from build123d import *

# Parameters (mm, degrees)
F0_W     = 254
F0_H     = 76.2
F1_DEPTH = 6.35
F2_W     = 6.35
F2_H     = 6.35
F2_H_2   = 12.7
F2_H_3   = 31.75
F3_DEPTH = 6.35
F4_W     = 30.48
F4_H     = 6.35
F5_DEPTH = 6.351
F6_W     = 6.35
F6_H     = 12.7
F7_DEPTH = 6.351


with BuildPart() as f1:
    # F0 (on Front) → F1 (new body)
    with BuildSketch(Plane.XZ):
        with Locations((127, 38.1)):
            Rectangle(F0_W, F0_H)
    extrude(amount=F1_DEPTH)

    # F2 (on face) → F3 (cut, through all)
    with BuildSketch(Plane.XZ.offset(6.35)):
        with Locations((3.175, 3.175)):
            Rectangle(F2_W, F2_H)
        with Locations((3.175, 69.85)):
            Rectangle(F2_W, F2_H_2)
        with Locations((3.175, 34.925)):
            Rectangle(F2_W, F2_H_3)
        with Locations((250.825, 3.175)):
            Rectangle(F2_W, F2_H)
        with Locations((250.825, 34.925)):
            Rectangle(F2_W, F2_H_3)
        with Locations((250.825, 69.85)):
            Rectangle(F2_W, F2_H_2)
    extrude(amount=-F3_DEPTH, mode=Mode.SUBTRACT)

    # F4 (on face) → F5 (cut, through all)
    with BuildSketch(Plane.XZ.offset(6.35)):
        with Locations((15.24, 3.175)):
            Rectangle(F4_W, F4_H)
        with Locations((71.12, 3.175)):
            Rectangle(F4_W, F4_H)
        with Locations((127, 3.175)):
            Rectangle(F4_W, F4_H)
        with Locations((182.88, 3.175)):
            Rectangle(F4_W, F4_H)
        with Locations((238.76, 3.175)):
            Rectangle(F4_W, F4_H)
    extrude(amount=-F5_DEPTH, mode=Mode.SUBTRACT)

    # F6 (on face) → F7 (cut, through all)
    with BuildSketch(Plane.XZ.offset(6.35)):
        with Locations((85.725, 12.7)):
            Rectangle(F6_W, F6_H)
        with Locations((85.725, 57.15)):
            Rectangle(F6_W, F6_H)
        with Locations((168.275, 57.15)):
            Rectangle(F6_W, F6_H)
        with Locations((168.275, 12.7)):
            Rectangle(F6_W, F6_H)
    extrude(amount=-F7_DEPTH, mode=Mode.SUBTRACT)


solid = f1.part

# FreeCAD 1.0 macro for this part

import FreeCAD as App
import Part
import Sketcher
Q = App.Units.Quantity


def add_polygon(sketch, points):
    """Adds a closed chain of lines whose ends are joined by coincident constraints."""
    first, n = sketch.GeometryCount, len(points)
    for a, b in zip(points, points[1:] + points[:1]):
        sketch.addGeometry(Part.LineSegment(App.Vector(*a, 0), App.Vector(*b, 0)), False)
    for i in range(n):
        sketch.addConstraint(Sketcher.Constraint("Coincident", first + i, 2, first + (i + 1) % n, 1))

doc = App.newDocument("Part")
body = doc.addObject("PartDesign::Body", "Body")

sketch1 = body.newObject("Sketcher::SketchObject", "Sketch")
sketch1.AttachmentSupport = (doc.getObject("XZ_Plane"), [""])
sketch1.MapMode = "FlatFace"
add_polygon(sketch1, [(0, 76), (0, 0), (254, 0), (254, 76)])
sketch1.addConstraint(Sketcher.Constraint("Vertical", 0))
sketch1.addConstraint(Sketcher.Constraint("Horizontal", 1))
sketch1.addConstraint(Sketcher.Constraint("Vertical", 2))
sketch1.addConstraint(Sketcher.Constraint("Horizontal", 3))
sketch1.addConstraint(Sketcher.Constraint("Coincident", 0, 2, -1, 1))
sketch1.addConstraint(Sketcher.Constraint("DistanceX", 1, 1, 1, 2, Q("10 in")))
sketch1.addConstraint(Sketcher.Constraint("DistanceY", 0, 2, 0, 1, Q("3 in")))
pad1 = body.newObject("PartDesign::Pad", "Pad")
pad1.Profile = sketch1
pad1.Length = Q("0.25 in")

sketch2 = body.newObject("Sketcher::SketchObject", "Sketch001")
sketch2.AttachmentSupport = (doc.getObject("XZ_Plane"), [""])
sketch2.MapMode = "FlatFace"
sketch2.AttachmentOffset = App.Placement(App.Vector(0, 0, 0.25 * 25.4), App.Rotation())
add_polygon(sketch2, [(0, 6), (0, 0), (6, 0), (6, 6)])
add_polygon(sketch2, [(0, 76), (0, 64), (6, 64), (6, 76)])
add_polygon(sketch2, [(0, 51), (0, 19), (6, 19), (6, 51)])
add_polygon(sketch2, [(248, 6), (248, 0), (254, 0), (254, 6)])
add_polygon(sketch2, [(248, 51), (248, 19), (254, 19), (254, 51)])
add_polygon(sketch2, [(248, 76), (248, 64), (254, 64), (254, 76)])
sketch2.addConstraint(Sketcher.Constraint("Vertical", 0))
sketch2.addConstraint(Sketcher.Constraint("Horizontal", 1))
sketch2.addConstraint(Sketcher.Constraint("Vertical", 2))
sketch2.addConstraint(Sketcher.Constraint("Horizontal", 3))
sketch2.addConstraint(Sketcher.Constraint("Vertical", 4))
sketch2.addConstraint(Sketcher.Constraint("Horizontal", 5))
sketch2.addConstraint(Sketcher.Constraint("Vertical", 6))
sketch2.addConstraint(Sketcher.Constraint("Horizontal", 7))
sketch2.addConstraint(Sketcher.Constraint("Vertical", 8))
sketch2.addConstraint(Sketcher.Constraint("Horizontal", 9))
sketch2.addConstraint(Sketcher.Constraint("Vertical", 10))
sketch2.addConstraint(Sketcher.Constraint("Horizontal", 11))
sketch2.addConstraint(Sketcher.Constraint("Vertical", 12))
sketch2.addConstraint(Sketcher.Constraint("Horizontal", 13))
sketch2.addConstraint(Sketcher.Constraint("Vertical", 14))
sketch2.addConstraint(Sketcher.Constraint("Horizontal", 15))
sketch2.addConstraint(Sketcher.Constraint("Vertical", 16))
sketch2.addConstraint(Sketcher.Constraint("Horizontal", 17))
sketch2.addConstraint(Sketcher.Constraint("Vertical", 18))
sketch2.addConstraint(Sketcher.Constraint("Horizontal", 19))
sketch2.addConstraint(Sketcher.Constraint("Vertical", 20))
sketch2.addConstraint(Sketcher.Constraint("Horizontal", 21))
sketch2.addConstraint(Sketcher.Constraint("Vertical", 22))
sketch2.addConstraint(Sketcher.Constraint("Horizontal", 23))
sketch2.addConstraint(Sketcher.Constraint("Coincident", 0, 2, -1, 1))
sketch2.addConstraint(Sketcher.Constraint("PointOnObject", 4, 2, -2))
sketch2.addConstraint(Sketcher.Constraint("PointOnObject", 8, 2, -2))
sketch2.addConstraint(Sketcher.Constraint("PointOnObject", 12, 2, -1))
sketch2.addConstraint(Sketcher.Constraint("Horizontal", 3, 2, 14, 2))
sketch2.addConstraint(Sketcher.Constraint("Horizontal", 9, 2, 16, 2))
sketch2.addConstraint(Sketcher.Constraint("Horizontal", 11, 2, 18, 2))
sketch2.addConstraint(Sketcher.Constraint("Horizontal", 5, 2, 20, 2))
sketch2.addConstraint(Sketcher.Constraint("Horizontal", 7, 2, 22, 2))
sketch2.addConstraint(Sketcher.Constraint("Vertical", 2, 2, 5, 2))
sketch2.addConstraint(Sketcher.Constraint("Vertical", 6, 2, 9, 2))
sketch2.addConstraint(Sketcher.Constraint("Vertical", 15, 2, 16, 2))
sketch2.addConstraint(Sketcher.Constraint("Vertical", 14, 2, 17, 2))
sketch2.addConstraint(Sketcher.Constraint("Vertical", 19, 2, 20, 2))
sketch2.addConstraint(Sketcher.Constraint("Vertical", 18, 2, 21, 2))
sketch2.addConstraint(Sketcher.Constraint("Equal", 11, 13))
sketch2.addConstraint(Sketcher.Constraint("Equal", 23, 0))
sketch2.addConstraint(Sketcher.Constraint("DistanceY", 4, 2, 4, 1, Q("0.5 in")))
sketch2.addConstraint(Sketcher.Constraint("DistanceY", -1, 1, 6, 2, Q("3 in")))
sketch2.addConstraint(Sketcher.Constraint("DistanceY", -1, 1, 10, 2, Q("2 in")))
sketch2.addConstraint(Sketcher.Constraint("DistanceX", -1, 1, 13, 2, Q("10 in")))
sketch2.addConstraint(Sketcher.Constraint("DistanceX", 1, 1, 1, 2, Q("0.25 in")))
sketch2.addConstraint(Sketcher.Constraint("DistanceY", 8, 2, 8, 1, Q("1.25 in")))
pocket1 = body.newObject("PartDesign::Pocket", "Pocket")
pocket1.Profile = sketch2
pocket1.Type = "ThroughAll"

sketch3 = body.newObject("Sketcher::SketchObject", "Sketch002")
sketch3.AttachmentSupport = (doc.getObject("XZ_Plane"), [""])
sketch3.MapMode = "FlatFace"
sketch3.AttachmentOffset = App.Placement(App.Vector(0, 0, 0.25 * 25.4), App.Rotation())
add_polygon(sketch3, [(0, 6), (0, 0), (30, 0), (30, 6)])
add_polygon(sketch3, [(56, 6), (56, 0), (86, 0), (86, 6)])
add_polygon(sketch3, [(112, 6), (112, 0), (142, 0), (142, 6)])
add_polygon(sketch3, [(168, 6), (168, 0), (198, 0), (198, 6)])
add_polygon(sketch3, [(224, 6), (224, 0), (254, 0), (254, 6)])
sketch3.addConstraint(Sketcher.Constraint("Vertical", 0))
sketch3.addConstraint(Sketcher.Constraint("Horizontal", 1))
sketch3.addConstraint(Sketcher.Constraint("Vertical", 2))
sketch3.addConstraint(Sketcher.Constraint("Horizontal", 3))
sketch3.addConstraint(Sketcher.Constraint("Vertical", 4))
sketch3.addConstraint(Sketcher.Constraint("Horizontal", 5))
sketch3.addConstraint(Sketcher.Constraint("Vertical", 6))
sketch3.addConstraint(Sketcher.Constraint("Horizontal", 7))
sketch3.addConstraint(Sketcher.Constraint("Vertical", 8))
sketch3.addConstraint(Sketcher.Constraint("Horizontal", 9))
sketch3.addConstraint(Sketcher.Constraint("Vertical", 10))
sketch3.addConstraint(Sketcher.Constraint("Horizontal", 11))
sketch3.addConstraint(Sketcher.Constraint("Vertical", 12))
sketch3.addConstraint(Sketcher.Constraint("Horizontal", 13))
sketch3.addConstraint(Sketcher.Constraint("Vertical", 14))
sketch3.addConstraint(Sketcher.Constraint("Horizontal", 15))
sketch3.addConstraint(Sketcher.Constraint("Vertical", 16))
sketch3.addConstraint(Sketcher.Constraint("Horizontal", 17))
sketch3.addConstraint(Sketcher.Constraint("Vertical", 18))
sketch3.addConstraint(Sketcher.Constraint("Horizontal", 19))
sketch3.addConstraint(Sketcher.Constraint("Coincident", 0, 2, -1, 1))
sketch3.addConstraint(Sketcher.Constraint("PointOnObject", 4, 2, -1))
sketch3.addConstraint(Sketcher.Constraint("PointOnObject", 8, 2, -1))
sketch3.addConstraint(Sketcher.Constraint("PointOnObject", 12, 2, -1))
sketch3.addConstraint(Sketcher.Constraint("PointOnObject", 16, 2, -1))
sketch3.addConstraint(Sketcher.Constraint("Horizontal", 3, 2, 6, 2))
sketch3.addConstraint(Sketcher.Constraint("Horizontal", 7, 2, 10, 2))
sketch3.addConstraint(Sketcher.Constraint("Horizontal", 11, 2, 14, 2))
sketch3.addConstraint(Sketcher.Constraint("Horizontal", 15, 2, 18, 2))
sketch3.addConstraint(Sketcher.Constraint("Equal", 3, 5))
sketch3.addConstraint(Sketcher.Constraint("Equal", 7, 9))
sketch3.addConstraint(Sketcher.Constraint("Equal", 11, 13))
sketch3.addConstraint(Sketcher.Constraint("Equal", 15, 17))
sketch3.addConstraint(Sketcher.Constraint("DistanceX", 1, 1, 1, 2, Q("1.2 in")))
sketch3.addConstraint(Sketcher.Constraint("DistanceX", -1, 1, 17, 2, Q("10 in")))
sketch3.addConstraint(Sketcher.Constraint("DistanceX", 1, 2, 4, 2, Q("1 in")))
sketch3.addConstraint(Sketcher.Constraint("DistanceX", 5, 2, 8, 2, Q("1 in")))
sketch3.addConstraint(Sketcher.Constraint("DistanceX", 9, 2, 12, 2, Q("1 in")))
sketch3.addConstraint(Sketcher.Constraint("DistanceY", 0, 2, 0, 1, Q("0.25 in")))
pocket2 = body.newObject("PartDesign::Pocket", "Pocket001")
pocket2.Profile = sketch3
pocket2.Type = "ThroughAll"

sketch4 = body.newObject("Sketcher::SketchObject", "Sketch003")
sketch4.AttachmentSupport = (doc.getObject("XZ_Plane"), [""])
sketch4.MapMode = "FlatFace"
sketch4.AttachmentOffset = App.Placement(App.Vector(0, 0, 0.25 * 25.4), App.Rotation())
add_polygon(sketch4, [(83, 19), (83, 6), (89, 6), (89, 19)])
add_polygon(sketch4, [(83, 64), (83, 51), (89, 51), (89, 64)])
add_polygon(sketch4, [(165, 64), (165, 51), (171, 51), (171, 64)])
add_polygon(sketch4, [(165, 19), (165, 6), (171, 6), (171, 19)])
sketch4.addConstraint(Sketcher.Constraint("Vertical", 0))
sketch4.addConstraint(Sketcher.Constraint("Horizontal", 1))
sketch4.addConstraint(Sketcher.Constraint("Vertical", 2))
sketch4.addConstraint(Sketcher.Constraint("Horizontal", 3))
sketch4.addConstraint(Sketcher.Constraint("Vertical", 4))
sketch4.addConstraint(Sketcher.Constraint("Horizontal", 5))
sketch4.addConstraint(Sketcher.Constraint("Vertical", 6))
sketch4.addConstraint(Sketcher.Constraint("Horizontal", 7))
sketch4.addConstraint(Sketcher.Constraint("Vertical", 8))
sketch4.addConstraint(Sketcher.Constraint("Horizontal", 9))
sketch4.addConstraint(Sketcher.Constraint("Vertical", 10))
sketch4.addConstraint(Sketcher.Constraint("Horizontal", 11))
sketch4.addConstraint(Sketcher.Constraint("Vertical", 12))
sketch4.addConstraint(Sketcher.Constraint("Horizontal", 13))
sketch4.addConstraint(Sketcher.Constraint("Vertical", 14))
sketch4.addConstraint(Sketcher.Constraint("Horizontal", 15))
sketch4.addConstraint(Sketcher.Constraint("Horizontal", 5, 2, 8, 2))
sketch4.addConstraint(Sketcher.Constraint("Horizontal", 7, 2, 10, 2))
sketch4.addConstraint(Sketcher.Constraint("Horizontal", 1, 2, 12, 2))
sketch4.addConstraint(Sketcher.Constraint("Horizontal", 3, 2, 14, 2))
sketch4.addConstraint(Sketcher.Constraint("Vertical", 3, 2, 4, 2))
sketch4.addConstraint(Sketcher.Constraint("Vertical", 2, 2, 5, 2))
sketch4.addConstraint(Sketcher.Constraint("Vertical", 11, 2, 12, 2))
sketch4.addConstraint(Sketcher.Constraint("Vertical", 10, 2, 13, 2))
sketch4.addConstraint(Sketcher.Constraint("Equal", 7, 9))
sketch4.addConstraint(Sketcher.Constraint("Equal", 2, 4))
sketch4.addConstraint(Sketcher.Constraint("DistanceY", 0, 2, 0, 1, Q("0.5 in")))
sketch4.addConstraint(Sketcher.Constraint("DistanceY", -1, 1, 4, 2, Q("2 in")))
sketch4.addConstraint(Sketcher.Constraint("DistanceX", 5, 2, 8, 2, Q("3 in")))
sketch4.addConstraint(Sketcher.Constraint("DistanceX", 1, 1, 1, 2, Q("0.25 in")))
sketch4.addConstraint(Sketcher.Constraint("DistanceX", -1, 1, 1, 2, Q("3.5 in")))
sketch4.addConstraint(Sketcher.Constraint("DistanceY", -1, 1, 0, 2, Q("0.25 in")))
pocket3 = body.newObject("PartDesign::Pocket", "Pocket002")
pocket3.Profile = sketch4
pocket3.Type = "ThroughAll"

doc.recompute()
